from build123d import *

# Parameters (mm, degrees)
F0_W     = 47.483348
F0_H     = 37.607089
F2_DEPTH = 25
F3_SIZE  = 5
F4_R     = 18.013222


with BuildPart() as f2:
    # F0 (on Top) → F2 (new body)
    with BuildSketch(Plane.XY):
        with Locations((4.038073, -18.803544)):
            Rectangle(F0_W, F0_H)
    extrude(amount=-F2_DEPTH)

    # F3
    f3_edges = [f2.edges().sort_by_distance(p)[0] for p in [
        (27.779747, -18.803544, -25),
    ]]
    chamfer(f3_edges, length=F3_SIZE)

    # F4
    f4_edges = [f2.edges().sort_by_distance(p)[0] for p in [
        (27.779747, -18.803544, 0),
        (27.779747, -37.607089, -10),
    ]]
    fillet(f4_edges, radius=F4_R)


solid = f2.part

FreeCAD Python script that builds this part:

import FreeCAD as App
import Part
import Sketcher

V = App.Vector


def edges_at(feature, points):
    """Names of the edges that pass closest to the given points."""
    edges = feature.Shape.Edges
    near = lambda p: min(range(len(edges)), key=lambda i: edges[i].distToShape(Part.Vertex(*p))[0])
    return sorted({f"Edge{near(p) + 1}" for p in points})

doc = App.newDocument("Part")
params = doc.addObject("Spreadsheet::Sheet", "Params")
for row, (alias, value) in enumerate([
    ("pad1_length", "25 mm"),
    ("chamfer_size", "5 mm"),
    ("fillet_radius", "18.013222 mm"),
], start=1):
    params.set(f"A{row}", alias)
    params.set(f"B{row}", "=" + value)
    params.setAlias(f"B{row}", alias)

body = doc.addObject("PartDesign::Body", "Body")

sketch1 = body.newObject("Sketcher::SketchObject", "Sketch")
sketch1.AttachmentSupport = (doc.getObject("XY_Plane"), [""])
sketch1.MapMode = "FlatFace"
sketch1.addGeometry(Part.LineSegment(V(-20, 0, 0), V(-20, -38, 0)), False)
sketch1.addGeometry(Part.LineSegment(V(-20, -38, 0), V(28, -38, 0)), False)
sketch1.addGeometry(Part.LineSegment(V(28, -38, 0), V(28, 0, 0)), False)
sketch1.addGeometry(Part.LineSegment(V(28, 0, 0), V(-20, 0, 0)), False)
sketch1.addConstraint(Sketcher.Constraint("Coincident", 0, 2, 1, 1))
sketch1.addConstraint(Sketcher.Constraint("Coincident", 1, 2, 2, 1))
sketch1.addConstraint(Sketcher.Constraint("Coincident", 2, 2, 3, 1))
sketch1.addConstraint(Sketcher.Constraint("Coincident", 3, 2, 0, 1))
sketch1.addConstraint(Sketcher.Constraint("Vertical", 0))
sketch1.addConstraint(Sketcher.Constraint("Horizontal", 1))
sketch1.addConstraint(Sketcher.Constraint("Vertical", 2))
sketch1.addConstraint(Sketcher.Constraint("Horizontal", 3))
sketch1.addConstraint(Sketcher.Constraint("PointOnObject", 2, 2, -1))
sketch1.addConstraint(Sketcher.Constraint("DistanceY", 0, 2, 0, 1, 37.607089))
sketch1.addConstraint(Sketcher.Constraint("DistanceX", 0, 2, -1, 1, 19.703601))
sketch1.addConstraint(Sketcher.Constraint("DistanceX", 1, 1, 1, 2, 47.483348))
pad1 = body.newObject("PartDesign::Pad", "Pad")
pad1.Profile = sketch1
pad1.setExpression("Length", "Params.pad1_length")
pad1.Reversed = True
doc.recompute()

chamfer = body.newObject("PartDesign::Chamfer", "Chamfer")
chamfer.Base = (pad1, edges_at(pad1, [(27.78, -18.804, -25)]))
chamfer.setExpression("Size", "Params.chamfer_size")
doc.recompute()

fillet = body.newObject("PartDesign::Fillet", "Fillet")
fillet.Base = (chamfer, edges_at(chamfer, [(27.78, -18.804, 0), (27.78, -37.607, -10)]))
fillet.setExpression("Radius", "Params.fillet_radius")

doc.recompute()
